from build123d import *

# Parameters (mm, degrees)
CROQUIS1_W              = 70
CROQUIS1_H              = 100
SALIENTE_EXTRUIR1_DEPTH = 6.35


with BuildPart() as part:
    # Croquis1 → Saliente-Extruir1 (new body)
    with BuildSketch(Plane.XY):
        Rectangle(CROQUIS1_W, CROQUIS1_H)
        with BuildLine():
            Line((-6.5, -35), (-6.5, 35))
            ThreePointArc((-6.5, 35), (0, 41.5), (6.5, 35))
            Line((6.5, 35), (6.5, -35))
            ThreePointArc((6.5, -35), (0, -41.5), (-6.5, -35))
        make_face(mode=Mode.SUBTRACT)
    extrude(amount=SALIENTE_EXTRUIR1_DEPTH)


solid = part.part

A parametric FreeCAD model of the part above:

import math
import FreeCAD as App
import Part
import Sketcher

V = App.Vector
Q = App.Units.Quantity


def add_polygon(sketch, points):
    """Adds a closed chain of lines whose ends are joined by coincident constraints."""
    first, n = sketch.GeometryCount, len(points)
    for a, b in zip(points, points[1:] + points[:1]):
        sketch.addGeometry(Part.LineSegment(App.Vector(*a, 0), App.Vector(*b, 0)), False)
    for i in range(n):
        sketch.addConstraint(Sketcher.Constraint("Coincident", first + i, 2, first + (i + 1) % n, 1))

doc = App.newDocument("Part")
body = doc.addObject("PartDesign::Body", "Body")

# Sketch on XY plane
sketch1 = body.newObject("Sketcher::SketchObject", "Sketch")
sketch1.AttachmentSupport = (doc.getObject("XY_Plane"), [""])
sketch1.MapMode = "FlatFace"
add_polygon(sketch1, [(-35, 50), (-35, -50), (35, -50), (35, 50)])  # lines 0-3
sketch1.addGeometry(Part.ArcOfCircle(Part.Circle(V(0, -35, 0), V(0, 0, 1), 6), math.radians(180), math.radians(360)), False)  # 4
sketch1.addGeometry(Part.LineSegment(V(-6, -35, 0), V(-6, 35, 0)), False)  # 5
sketch1.addGeometry(Part.ArcOfCircle(Part.Circle(V(0, 35, 0), V(0, 0, 1), 6), math.radians(0), math.radians(180)), False)  # 6
sketch1.addGeometry(Part.LineSegment(V(6, 35, 0), V(6, -35, 0)), False)  # 7
sketch1.addConstraint(Sketcher.Constraint("Tangent", 4, 1, 5, 1))
sketch1.addConstraint(Sketcher.Constraint("Tangent", 5, 2, 6, 2))
sketch1.addConstraint(Sketcher.Constraint("Tangent", 6, 1, 7, 1))
sketch1.addConstraint(Sketcher.Constraint("Tangent", 7, 2, 4, 2))
sketch1.addConstraint(Sketcher.Constraint("Vertical", 0))
sketch1.addConstraint(Sketcher.Constraint("Horizontal", 1))
sketch1.addConstraint(Sketcher.Constraint("Vertical", 2))
sketch1.addConstraint(Sketcher.Constraint("Horizontal", 3))
sketch1.addConstraint(Sketcher.Constraint("Vertical", 5))
sketch1.addConstraint(Sketcher.Constraint("Vertical", 7))
sketch1.addConstraint(Sketcher.Constraint("Symmetric", 4, 3, 6, 3, -1, 1))
sketch1.addConstraint(Sketcher.Constraint("Symmetric", 0, 2, 2, 2, -1, 1))
sketch1.addConstraint(Sketcher.Constraint("Equal", 3, 5))
sketch1.addConstraint(Sketcher.Constraint("Radius", 4, Q("6.5 mm")))
sketch1.addConstraint(Sketcher.Constraint("DistanceX", 1, 1, 1, 2, Q("70 mm")))
sketch1.addConstraint(Sketcher.Constraint("DistanceY", 0, 2, 0, 1, Q("100 mm")))
pad1 = body.newObject("PartDesign::Pad", "Pad")
pad1.Profile = sketch1
pad1.Length = 6.35

doc.recompute()
